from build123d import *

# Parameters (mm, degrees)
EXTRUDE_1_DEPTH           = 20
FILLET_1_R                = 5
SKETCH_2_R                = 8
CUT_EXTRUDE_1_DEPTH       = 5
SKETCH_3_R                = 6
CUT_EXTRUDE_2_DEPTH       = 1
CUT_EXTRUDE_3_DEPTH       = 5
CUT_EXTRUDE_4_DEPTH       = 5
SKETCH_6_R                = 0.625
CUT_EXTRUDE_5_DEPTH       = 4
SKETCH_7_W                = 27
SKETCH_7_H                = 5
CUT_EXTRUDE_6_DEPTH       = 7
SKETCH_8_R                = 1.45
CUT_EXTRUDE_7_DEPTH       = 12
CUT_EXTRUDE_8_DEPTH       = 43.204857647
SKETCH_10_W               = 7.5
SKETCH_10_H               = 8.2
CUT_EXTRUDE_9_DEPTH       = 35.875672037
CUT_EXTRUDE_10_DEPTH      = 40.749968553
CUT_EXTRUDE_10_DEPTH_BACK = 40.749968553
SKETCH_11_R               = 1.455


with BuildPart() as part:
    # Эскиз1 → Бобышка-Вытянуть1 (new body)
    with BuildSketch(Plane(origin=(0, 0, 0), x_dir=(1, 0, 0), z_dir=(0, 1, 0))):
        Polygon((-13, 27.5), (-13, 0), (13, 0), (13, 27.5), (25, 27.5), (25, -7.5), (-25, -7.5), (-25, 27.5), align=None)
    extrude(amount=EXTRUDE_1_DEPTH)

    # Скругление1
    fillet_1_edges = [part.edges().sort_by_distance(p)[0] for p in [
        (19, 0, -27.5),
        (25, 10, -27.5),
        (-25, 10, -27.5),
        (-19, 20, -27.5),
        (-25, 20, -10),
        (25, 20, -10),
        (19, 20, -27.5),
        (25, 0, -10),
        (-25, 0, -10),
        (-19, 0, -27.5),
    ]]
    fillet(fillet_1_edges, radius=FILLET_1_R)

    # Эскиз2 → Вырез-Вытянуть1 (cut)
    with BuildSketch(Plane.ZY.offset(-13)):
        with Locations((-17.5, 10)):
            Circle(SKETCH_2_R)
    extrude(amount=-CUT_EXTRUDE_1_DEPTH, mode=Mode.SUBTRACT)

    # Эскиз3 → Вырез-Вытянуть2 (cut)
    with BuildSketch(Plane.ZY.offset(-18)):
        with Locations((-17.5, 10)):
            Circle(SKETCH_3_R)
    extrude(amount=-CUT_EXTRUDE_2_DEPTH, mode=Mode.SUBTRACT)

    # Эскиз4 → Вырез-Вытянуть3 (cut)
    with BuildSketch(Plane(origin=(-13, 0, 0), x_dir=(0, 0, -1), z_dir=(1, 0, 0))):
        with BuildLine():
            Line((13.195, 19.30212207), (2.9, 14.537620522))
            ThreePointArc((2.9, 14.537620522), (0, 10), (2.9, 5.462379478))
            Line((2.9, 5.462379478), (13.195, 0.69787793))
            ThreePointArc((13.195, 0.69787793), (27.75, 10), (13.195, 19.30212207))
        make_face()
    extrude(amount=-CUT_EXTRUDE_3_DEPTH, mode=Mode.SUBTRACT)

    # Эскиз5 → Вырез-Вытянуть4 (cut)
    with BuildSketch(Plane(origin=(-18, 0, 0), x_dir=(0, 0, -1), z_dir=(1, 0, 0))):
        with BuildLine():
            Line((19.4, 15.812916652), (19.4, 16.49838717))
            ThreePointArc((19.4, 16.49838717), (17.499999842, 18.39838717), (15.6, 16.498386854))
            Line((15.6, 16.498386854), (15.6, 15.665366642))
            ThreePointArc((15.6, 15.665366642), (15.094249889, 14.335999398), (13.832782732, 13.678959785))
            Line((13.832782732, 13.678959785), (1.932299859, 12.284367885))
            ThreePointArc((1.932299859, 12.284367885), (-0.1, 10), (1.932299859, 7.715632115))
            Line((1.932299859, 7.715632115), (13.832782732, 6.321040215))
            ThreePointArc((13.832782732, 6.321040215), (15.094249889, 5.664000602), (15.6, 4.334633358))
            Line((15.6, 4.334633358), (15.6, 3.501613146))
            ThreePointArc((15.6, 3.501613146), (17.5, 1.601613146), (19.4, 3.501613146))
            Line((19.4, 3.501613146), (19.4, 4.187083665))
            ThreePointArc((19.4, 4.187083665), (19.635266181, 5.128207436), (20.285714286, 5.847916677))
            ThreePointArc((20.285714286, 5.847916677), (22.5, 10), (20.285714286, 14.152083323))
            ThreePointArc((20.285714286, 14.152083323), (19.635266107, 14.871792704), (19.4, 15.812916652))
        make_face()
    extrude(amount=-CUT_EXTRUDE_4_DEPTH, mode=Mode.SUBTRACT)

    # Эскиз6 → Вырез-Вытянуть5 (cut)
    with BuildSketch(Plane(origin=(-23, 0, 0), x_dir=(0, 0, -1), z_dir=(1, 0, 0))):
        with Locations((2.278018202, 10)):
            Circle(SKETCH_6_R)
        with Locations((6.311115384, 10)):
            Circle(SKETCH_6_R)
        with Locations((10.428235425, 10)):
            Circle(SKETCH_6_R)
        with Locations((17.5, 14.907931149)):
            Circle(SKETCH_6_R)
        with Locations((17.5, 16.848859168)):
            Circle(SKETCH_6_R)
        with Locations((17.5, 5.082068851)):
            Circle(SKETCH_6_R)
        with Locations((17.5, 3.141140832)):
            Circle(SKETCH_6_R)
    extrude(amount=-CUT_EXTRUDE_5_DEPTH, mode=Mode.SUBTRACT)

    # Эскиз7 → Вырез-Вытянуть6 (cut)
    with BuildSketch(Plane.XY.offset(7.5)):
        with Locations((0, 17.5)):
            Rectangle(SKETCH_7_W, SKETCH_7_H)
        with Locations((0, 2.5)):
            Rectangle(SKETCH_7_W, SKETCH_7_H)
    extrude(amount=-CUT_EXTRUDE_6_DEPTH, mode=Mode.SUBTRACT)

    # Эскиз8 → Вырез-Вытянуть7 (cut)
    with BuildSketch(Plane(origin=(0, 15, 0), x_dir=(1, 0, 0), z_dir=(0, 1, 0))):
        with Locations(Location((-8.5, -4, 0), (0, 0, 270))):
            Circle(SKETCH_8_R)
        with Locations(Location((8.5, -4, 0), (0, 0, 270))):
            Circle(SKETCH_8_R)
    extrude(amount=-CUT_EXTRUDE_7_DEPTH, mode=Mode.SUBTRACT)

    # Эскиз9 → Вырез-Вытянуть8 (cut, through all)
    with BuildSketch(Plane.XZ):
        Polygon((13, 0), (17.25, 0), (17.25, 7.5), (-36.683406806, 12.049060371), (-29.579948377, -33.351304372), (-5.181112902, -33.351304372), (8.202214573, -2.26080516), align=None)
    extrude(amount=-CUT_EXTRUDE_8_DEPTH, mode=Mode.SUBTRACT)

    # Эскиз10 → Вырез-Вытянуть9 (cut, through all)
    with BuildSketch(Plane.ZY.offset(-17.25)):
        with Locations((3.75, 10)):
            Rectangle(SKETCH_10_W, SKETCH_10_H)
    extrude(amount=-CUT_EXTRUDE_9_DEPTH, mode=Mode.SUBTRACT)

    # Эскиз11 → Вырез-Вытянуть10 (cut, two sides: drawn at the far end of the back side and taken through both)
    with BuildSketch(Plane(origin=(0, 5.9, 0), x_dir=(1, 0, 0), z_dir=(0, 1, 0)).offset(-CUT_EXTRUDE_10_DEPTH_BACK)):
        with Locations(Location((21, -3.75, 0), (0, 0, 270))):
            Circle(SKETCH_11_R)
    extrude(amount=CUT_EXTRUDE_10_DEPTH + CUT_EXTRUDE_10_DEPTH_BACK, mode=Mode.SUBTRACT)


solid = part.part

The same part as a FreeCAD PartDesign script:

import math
import FreeCAD as App
import Part
import Sketcher
from FreeCAD import Vector


def edges_at(feature, points):
    """Names of the edges that pass closest to the given points."""
    edges = feature.Shape.Edges
    near = lambda p: min(range(len(edges)), key=lambda i: edges[i].distToShape(Part.Vertex(*p))[0])
    return sorted({f"Edge{near(p) + 1}" for p in points})

doc = App.newDocument("Part")
body = doc.addObject("PartDesign::Body", "Body")

# Sketch on XZ plane
sketch1 = body.newObject("Sketcher::SketchObject", "Sketch")
sketch1.AttachmentSupport = (doc.getObject("XZ_Plane"), [""])
sketch1.MapMode = "FlatFace"
sketch1.addGeometry([
    Part.LineSegment(Vector(-13, 0, 0), Vector(-13, -27.5, 0)),  # 0
    Part.LineSegment(Vector(-13, -27.5, 0), Vector(-25, -27.5, 0)),  # 1
    Part.LineSegment(Vector(-25, -27.5, 0), Vector(-25, 7.5, 0)),  # 2
    Part.LineSegment(Vector(-25, 7.5, 0), Vector(25, 7.5, 0)),  # 3
    Part.LineSegment(Vector(25, 7.5, 0), Vector(25, -27.5, 0)),  # 4
    Part.LineSegment(Vector(25, -27.5, 0), Vector(13, -27.5, 0)),  # 5
    Part.LineSegment(Vector(13, -27.5, 0), Vector(13, 0, 0)),  # 6
    Part.LineSegment(Vector(13, 0, 0), Vector(-13, 0, 0)),  # 7
], False)
sketch1.addConstraint([
    Sketcher.Constraint("Coincident", 0, 2, 1, 1),
    Sketcher.Constraint("Coincident", 1, 2, 2, 1),
    Sketcher.Constraint("Coincident", 2, 2, 3, 1),
    Sketcher.Constraint("Coincident", 3, 2, 4, 1),
    Sketcher.Constraint("Coincident", 4, 2, 5, 1),
    Sketcher.Constraint("Coincident", 5, 2, 6, 1),
    Sketcher.Constraint("Coincident", 6, 2, 7, 1),
    Sketcher.Constraint("Coincident", 7, 2, 0, 1),
    Sketcher.Constraint("Vertical", 0),
    Sketcher.Constraint("Horizontal", 1),
    Sketcher.Constraint("Vertical", 2),
    Sketcher.Constraint("Horizontal", 3),
    Sketcher.Constraint("Vertical", 4),
    Sketcher.Constraint("Horizontal", 5),
    Sketcher.Constraint("Vertical", 6),
    Sketcher.Constraint("Horizontal", 7),
    Sketcher.Constraint("Symmetric", 6, 2, 7, 2, -1, 1),
    Sketcher.Constraint("Symmetric", 1, 2, 4, 2, -2),
    Sketcher.Constraint("DistanceX", 1, 2, 1, 1, 12.0),
    Sketcher.Constraint("DistanceX", 3, 1, 3, 2, 50.0),
    Sketcher.Constraint("DistanceY", 2, 1, 2, 2, 35.0),
    Sketcher.Constraint("DistanceY", 0, 2, 0, 1, 27.5),
])
pad1 = body.newObject("PartDesign::Pad", "Pad")
pad1.Profile = sketch1
pad1.Length = 20
pad1.Reversed = True
doc.recompute()

fillet = body.newObject("PartDesign::Fillet", "Fillet")
fillet.Base = (pad1, edges_at(pad1, [
    (19, 0, -27.5),
    (25, 10, -27.5),
    (-25, 10, -27.5),
    (-19, 20, -27.5),
    (-25, 20, -10),
    (25, 20, -10),
    (19, 20, -27.5),
    (25, 0, -10),
    (-25, 0, -10),
    (-19, 0, -27.5),
]))
fillet.Radius = 5

# Sketch on YZ plane
sketch2 = body.newObject("Sketcher::SketchObject", "Sketch001")
sketch2.AttachmentSupport = (doc.getObject("YZ_Plane"), [""])
sketch2.MapMode = "FlatFace"
sketch2.AttachmentOffset = App.Placement(Vector(0, 0, 13), App.Rotation())
sketch2.addGeometry(Part.Circle(Vector(10, -17.5, 0), Vector(0, 0, 1), 8), False)
sketch2.addConstraint([
    Sketcher.Constraint("Diameter", 0, 16.0),
    Sketcher.Constraint("DistanceX", -1, 1, 0, 3, 10.0),
    Sketcher.Constraint("DistanceY", 0, 3, -1, 1, 17.5),
])
pocket1 = body.newObject("PartDesign::Pocket", "Pocket")
pocket1.Profile = sketch2
pocket1.Length = 5
pocket1.Reversed = True

# Sketch on YZ plane
sketch3 = body.newObject("Sketcher::SketchObject", "Sketch002")
sketch3.AttachmentSupport = (doc.getObject("YZ_Plane"), [""])
sketch3.MapMode = "FlatFace"
sketch3.AttachmentOffset = App.Placement(Vector(0, 0, 18), App.Rotation())
sketch3.addGeometry(Part.Circle(Vector(10, -17.5, 0), Vector(0, 0, 1), 6), False)
sketch3.addConstraint([
    Sketcher.Constraint("Diameter", 0, 12.0),
    Sketcher.Constraint("DistanceX", -1, 1, 0, 3, 10.0),
    Sketcher.Constraint("DistanceY", 0, 3, -1, 1, 17.5),
])
pocket2 = body.newObject("PartDesign::Pocket", "Pocket001")
pocket2.Profile = sketch3
pocket2.Length = 1
pocket2.Reversed = True

# Sketch on YZ plane
sketch4 = body.newObject("Sketcher::SketchObject", "Sketch003")
sketch4.AttachmentSupport = (doc.getObject("YZ_Plane"), [""])
sketch4.MapMode = "FlatFace"
sketch4.AttachmentOffset = App.Placement(Vector(0, 0, -13), App.Rotation())
sketch4.addGeometry([
    Part.LineSegment(Vector(19.302122, -13.195, 0), Vector(14.537621, -2.9, 0)),
    Part.ArcOfCircle(Part.Circle(Vector(10, -5, 0), Vector(0, 0, 1), 5), math.radians(24.834587), math.radians(155.165413)),
    Part.LineSegment(Vector(5.462379, -2.9, 0), Vector(0.697878, -13.195, 0)),
    Part.ArcOfCircle(Part.Circle(Vector(10, -17.5, 0), Vector(0, 0, 1), 10.25), math.radians(155.165413), math.radians(384.834587)),
], False)
sketch4.addConstraint([
    Sketcher.Constraint("Tangent", 0, 2, 1, 1),
    Sketcher.Constraint("Tangent", 1, 2, 2, 1),
    Sketcher.Constraint("Tangent", 2, 2, 3, 1),
    Sketcher.Constraint("Tangent", 3, 2, 0, 1),
    Sketcher.Constraint("Horizontal", 0, 2, 1, 2),
    Sketcher.Constraint("Radius", 1, 5.0),
    Sketcher.Constraint("Radius", 3, 10.25),
    Sketcher.Constraint("DistanceX", -1, 1, 1, 3, 10.0),
    Sketcher.Constraint("DistanceY", 1, 3, -1, 1, 5.0),
    Sketcher.Constraint("DistanceY", 3, 3, -1, 1, 17.5),
])
pocket3 = body.newObject("PartDesign::Pocket", "Pocket002")
pocket3.Profile = sketch4
pocket3.Length = 5

# Sketch on YZ plane
sketch5 = body.newObject("Sketcher::SketchObject", "Sketch004")
sketch5.AttachmentSupport = (doc.getObject("YZ_Plane"), [""])
sketch5.MapMode = "FlatFace"
sketch5.AttachmentOffset = App.Placement(Vector(0, 0, -18), App.Rotation())
sketch5.addGeometry([
    Part.LineSegment(Vector(15.812917, -19.4, 0), Vector(16.498387, -19.4, 0)),  # 0
    Part.ArcOfCircle(Part.Circle(Vector(16.498387, -17.5, 0), Vector(0, 0, 1), 1.9), math.radians(-90), math.radians(90.00001)),  # 1
    Part.LineSegment(Vector(16.498387, -15.6, 0), Vector(15.665367, -15.6, 0)),  # 2
    Part.ArcOfCircle(Part.Circle(Vector(15.665367, -13.6, 0), Vector(0, 0, 1), 2), math.radians(-173.316117), math.radians(-90)),  # 3
    Part.LineSegment(Vector(13.67896, -13.832783, 0), Vector(12.284368, -1.9323, 0)),  # 4
    Part.ArcOfCircle(Part.Circle(Vector(10, -2.2, 0), Vector(0, 0, 1), 2.3), math.radians(6.683883), math.radians(173.316117)),  # 5
    Part.LineSegment(Vector(7.715632, -1.9323, 0), Vector(6.32104, -13.832783, 0)),  # 6
    Part.ArcOfCircle(Part.Circle(Vector(4.334633, -13.6, 0), Vector(0, 0, 1), 2), math.radians(-90), math.radians(-6.683883)),  # 7
    Part.LineSegment(Vector(4.334633, -15.6, 0), Vector(3.501613, -15.6, 0)),  # 8
    Part.ArcOfCircle(Part.Circle(Vector(3.501613, -17.5, 0), Vector(0, 0, 1), 1.9), math.radians(90), math.radians(270)),  # 9
    Part.LineSegment(Vector(3.501613, -19.4, 0), Vector(4.187084, -19.4, 0)),  # 10
    Part.ArcOfCircle(Part.Circle(Vector(4.187083, -21.4, 0), Vector(0, 0, 1), 2), math.radians(33.858437), math.radians(89.999991)),  # 11
    Part.ArcOfCircle(Part.Circle(Vector(10, -17.5, 0), Vector(0, 0, 1), 5), math.radians(-146.141563), math.radians(-33.858437)),  # 12
    Part.ArcOfCircle(Part.Circle(Vector(15.812917, -21.4, 0), Vector(0, 0, 1), 2), math.radians(90), math.radians(146.141563)),  # 13
], False)
sketch5.addConstraint([
    Sketcher.Constraint("Tangent", 0, 2, 1, 1),
    Sketcher.Constraint("Tangent", 1, 2, 2, 1),
    Sketcher.Constraint("Tangent", 2, 2, 3, 2),
    Sketcher.Constraint("Tangent", 3, 1, 4, 1),
    Sketcher.Constraint("Tangent", 4, 2, 5, 1),
    Sketcher.Constraint("Tangent", 5, 2, 6, 1),
    Sketcher.Constraint("Tangent", 6, 2, 7, 2),
    Sketcher.Constraint("Tangent", 7, 1, 8, 1),
    Sketcher.Constraint("Tangent", 8, 2, 9, 1),
    Sketcher.Constraint("Tangent", 9, 2, 10, 1),
    Sketcher.Constraint("Tangent", 10, 2, 11, 2),
    Sketcher.Constraint("Tangent", 11, 1, 12, 1),
    Sketcher.Constraint("Tangent", 12, 2, 13, 2),
    Sketcher.Constraint("Tangent", 13, 1, 0, 1),
    Sketcher.Constraint("Horizontal", 0),
    Sketcher.Constraint("Horizontal", 2),
    Sketcher.Constraint("Horizontal", 8),
    Sketcher.Constraint("Horizontal", 10),
    Sketcher.Constraint("Equal", 3, 7),
    Sketcher.Constraint("Equal", 1, 9),
    Sketcher.Constraint("Equal", 7, 11),
    Sketcher.Constraint("Equal", 11, 13),
    Sketcher.Constraint("Horizontal", 3, 3, 7, 3),
    Sketcher.Constraint("Horizontal", 9, 3, 12, 3),
    Sketcher.Constraint("Horizontal", 4, 2, 5, 2),
    Sketcher.Constraint("Vertical", 5, 3, 12, 3),
    Sketcher.Constraint("Equal", 2, 8),
    Sketcher.Constraint("Radius", 3, 2.0),
    Sketcher.Constraint("Radius", 12, 5.0),
    Sketcher.Constraint("Radius", 1, 1.9),
    Sketcher.Constraint("Radius", 5, 2.3),
    Sketcher.Constraint("DistanceX", -1, 1, 5, 3, 10.0),
    Sketcher.Constraint("DistanceY", 1, 3, -1, 1, 17.5),
    Sketcher.Constraint("DistanceY", 5, 3, -1, 1, 2.2),
    Sketcher.Constraint("DistanceX", 4, 2, 3, 3, 3.380999),
    Sketcher.Constraint("DistanceX", 0, 1, 0, 2, 0.685471),
])
pocket4 = body.newObject("PartDesign::Pocket", "Pocket003")
pocket4.Profile = sketch5
pocket4.Length = 5

# Sketch on YZ plane
sketch6 = body.newObject("Sketcher::SketchObject", "Sketch005")
sketch6.AttachmentSupport = (doc.getObject("YZ_Plane"), [""])
sketch6.MapMode = "FlatFace"
sketch6.AttachmentOffset = App.Placement(Vector(0, 0, -23), App.Rotation())
sketch6.addGeometry([
    Part.Circle(Vector(10, -2.278018, 0), Vector(0, 0, 1), 0.625),  # 0
    Part.Circle(Vector(10, -6.311115, 0), Vector(0, 0, 1), 0.625),  # 1
    Part.Circle(Vector(10, -10.428235, 0), Vector(0, 0, 1), 0.625),  # 2
    Part.Circle(Vector(14.907931, -17.5, 0), Vector(0, 0, 1), 0.625),  # 3
    Part.Circle(Vector(16.848859, -17.5, 0), Vector(0, 0, 1), 0.625),  # 4
    Part.Circle(Vector(5.082069, -17.5, 0), Vector(0, 0, 1), 0.625),  # 5
    Part.Circle(Vector(3.141141, -17.5, 0), Vector(0, 0, 1), 0.625),  # 6
], False)
sketch6.addConstraint([
    Sketcher.Constraint("Equal", 0, 1),
    Sketcher.Constraint("Equal", 1, 2),
    Sketcher.Constraint("Equal", 2, 3),
    Sketcher.Constraint("Equal", 3, 4),
    Sketcher.Constraint("Equal", 4, 5),
    Sketcher.Constraint("Equal", 5, 6),
    Sketcher.Constraint("Horizontal", 3, 3, 4, 3),
    Sketcher.Constraint("Horizontal", 4, 3, 5, 3),
    Sketcher.Constraint("Horizontal", 5, 3, 6, 3),
    Sketcher.Constraint("Vertical", 0, 3, 1, 3),
    Sketcher.Constraint("Vertical", 1, 3, 2, 3),
    Sketcher.Constraint("Diameter", 0, 1.25),
    Sketcher.Constraint("DistanceX", -1, 1, 0, 3, 10.0),
    Sketcher.Constraint("DistanceY", 3, 3, -1, 1, 17.5),
    Sketcher.Constraint("DistanceY", 0, 3, -1, 1, 2.278018),
    Sketcher.Constraint("DistanceX", -1, 1, 3, 3, 14.907931),
    Sketcher.Constraint("DistanceX", -1, 1, 4, 3, 16.848859),
    Sketcher.Constraint("DistanceX", -1, 1, 5, 3, 5.082069),
    Sketcher.Constraint("DistanceX", -1, 1, 6, 3, 3.141141),
    Sketcher.Constraint("DistanceY", 2, 3, 1, 3, 4.11712),
    Sketcher.Constraint("DistanceY", 1, 3, -1, 1, 6.311115),
])
pocket5 = body.newObject("PartDesign::Pocket", "Pocket004")
pocket5.Profile = sketch6
pocket5.Length = 4

# Sketch on XY plane
sketch7 = body.newObject("Sketcher::SketchObject", "Sketch006")
sketch7.AttachmentSupport = (doc.getObject("XY_Plane"), [""])
sketch7.MapMode = "FlatFace"
sketch7.AttachmentOffset = App.Placement(Vector(0, 0, 7.5), App.Rotation())
sketch7.addGeometry([
    Part.LineSegment(Vector(-13.5, 20, 0), Vector(-13.5, 15, 0)),  # 0
    Part.LineSegment(Vector(-13.5, 15, 0), Vector(13.5, 15, 0)),  # 1
    Part.LineSegment(Vector(13.5, 15, 0), Vector(13.5, 20, 0)),  # 2
    Part.LineSegment(Vector(13.5, 20, 0), Vector(-13.5, 20, 0)),  # 3
    Part.LineSegment(Vector(-13.5, 5, 0), Vector(-13.5, 0, 0)),  # 4
    Part.LineSegment(Vector(-13.5, 0, 0), Vector(13.5, 0, 0)),  # 5
    Part.LineSegment(Vector(13.5, 0, 0), Vector(13.5, 5, 0)),  # 6
    Part.LineSegment(Vector(13.5, 5, 0), Vector(-13.5, 5, 0)),  # 7
], False)
sketch7.addConstraint([
    Sketcher.Constraint("Coincident", 0, 2, 1, 1),
    Sketcher.Constraint("Coincident", 1, 2, 2, 1),
    Sketcher.Constraint("Coincident", 2, 2, 3, 1),
    Sketcher.Constraint("Coincident", 3, 2, 0, 1),
    Sketcher.Constraint("Coincident", 4, 2, 5, 1),
    Sketcher.Constraint("Coincident", 5, 2, 6, 1),
    Sketcher.Constraint("Coincident", 6, 2, 7, 1),
    Sketcher.Constraint("Coincident", 7, 2, 4, 1),
    Sketcher.Constraint("Vertical", 0),
    Sketcher.Constraint("Horizontal", 1),
    Sketcher.Constraint("Vertical", 2),
    Sketcher.Constraint("Horizontal", 3),
    Sketcher.Constraint("Vertical", 4),
    Sketcher.Constraint("Horizontal", 5),
    Sketcher.Constraint("Vertical", 6),
    Sketcher.Constraint("Horizontal", 7),
    Sketcher.Constraint("Symmetric", 4, 2, 5, 2, -1, 1),
    Sketcher.Constraint("Vertical", 3, 2, 4, 2),
    Sketcher.Constraint("Vertical", 2, 2, 5, 2),
    Sketcher.Constraint("Equal", 2, 4),
    Sketcher.Constraint("DistanceX", 1, 1, 1, 2, 27.0),
    Sketcher.Constraint("DistanceY", 0, 2, 0, 1, 5.0),
    Sketcher.Constraint("DistanceY", -1, 1, 0, 2, 15.0),
])
pocket6 = body.newObject("PartDesign::Pocket", "Pocket005")
pocket6.Profile = sketch7
pocket6.Length = 7

# Sketch on XZ plane
sketch8 = body.newObject("Sketcher::SketchObject", "Sketch007")
sketch8.AttachmentSupport = (doc.getObject("XZ_Plane"), [""])
sketch8.MapMode = "FlatFace"
sketch8.AttachmentOffset = App.Placement(Vector(0, 0, -15), App.Rotation())
sketch8.addGeometry([
    Part.Circle(Vector(-8.5, 4, 0), Vector(0, 0, 1), 1.45),
    Part.Circle(Vector(8.5, 4, 0), Vector(0, 0, 1), 1.45),
], False)
sketch8.addConstraint([
    Sketcher.Constraint("Equal", 0, 1),
    Sketcher.Constraint("Symmetric", 0, 3, 1, 3, -2),
    Sketcher.Constraint("Diameter", 0, 2.9),
    Sketcher.Constraint("DistanceY", -1, 1, 0, 3, 4.0),
    Sketcher.Constraint("DistanceX", 0, 3, 1, 3, 17.0),
])
pocket7 = body.newObject("PartDesign::Pocket", "Pocket006")
pocket7.Profile = sketch8
pocket7.Length = 12
pocket7.Reversed = True

# Sketch on XZ plane
sketch9 = body.newObject("Sketcher::SketchObject", "Sketch008")
sketch9.AttachmentSupport = (doc.getObject("XZ_Plane"), [""])
sketch9.MapMode = "FlatFace"
sketch9.addGeometry([
    Part.LineSegment(Vector(13, 0, 0), Vector(17.25, 0, 0)),  # 0
    Part.LineSegment(Vector(17.25, 0, 0), Vector(17.25, 7.5, 0)),  # 1
    Part.LineSegment(Vector(17.25, 7.5, 0), Vector(-36.683407, 12.04906, 0)),  # 2
    Part.LineSegment(Vector(-36.683407, 12.04906, 0), Vector(-29.579948, -33.351304, 0)),  # 3
    Part.LineSegment(Vector(-29.579948, -33.351304, 0), Vector(-5.181113, -33.351304, 0)),  # 4
    Part.LineSegment(Vector(-5.181113, -33.351304, 0), Vector(8.202215, -2.260805, 0)),  # 5
    Part.LineSegment(Vector(8.202215, -2.260805, 0), Vector(13, 0, 0)),  # 6
], False)
sketch9.addConstraint([
    Sketcher.Constraint("Coincident", 0, 2, 1, 1),
    Sketcher.Constraint("Coincident", 1, 2, 2, 1),
    Sketcher.Constraint("Coincident", 2, 2, 3, 1),
    Sketcher.Constraint("Coincident", 3, 2, 4, 1),
    Sketcher.Constraint("Coincident", 4, 2, 5, 1),
    Sketcher.Constraint("Coincident", 5, 2, 6, 1),
    Sketcher.Constraint("Coincident", 6, 2, 0, 1),
    Sketcher.Constraint("Horizontal", 0),
    Sketcher.Constraint("Vertical", 1),
    Sketcher.Constraint("Horizontal", 4),
    Sketcher.Constraint("PointOnObject", 0, 2, -1),
    Sketcher.Constraint("DistanceY", 1, 1, 1, 2, 7.5),
    Sketcher.Constraint("DistanceX", -1, 1, 6, 2, 13.0),
    Sketcher.Constraint("DistanceX", 0, 1, 0, 2, 4.25),
    Sketcher.Constraint("DistanceY", 4, 2, 5, 2, 31.090499),
    Sketcher.Constraint("Distance", 5, 33.848672),
    Sketcher.Constraint("Distance", 6, 5.303771),
    Sketcher.Constraint("DistanceX", 4, 1, 4, 2, 24.398835),
    Sketcher.Constraint("DistanceY", -1, 1, 2, 2, 12.04906),
    Sketcher.Constraint("DistanceX", 3, 2, -1, 1, 29.579948),
    Sketcher.Constraint("DistanceX", 2, 2, 3, 2, 7.103458),
])
pocket8 = body.newObject("PartDesign::Pocket", "Pocket007")
pocket8.Profile = sketch9
pocket8.Type = "ThroughAll"

# Sketch on YZ plane
sketch10 = body.newObject("Sketcher::SketchObject", "Sketch009")
sketch10.AttachmentSupport = (doc.getObject("YZ_Plane"), [""])
sketch10.MapMode = "FlatFace"
sketch10.AttachmentOffset = App.Placement(Vector(0, 0, 17.25), App.Rotation())
sketch10.addGeometry([
    Part.LineSegment(Vector(14.1, 0, 0), Vector(5.9, 0, 0)),
    Part.LineSegment(Vector(5.9, 0, 0), Vector(5.9, 7.5, 0)),
    Part.LineSegment(Vector(5.9, 7.5, 0), Vector(14.1, 7.5, 0)),
    Part.LineSegment(Vector(14.1, 7.5, 0), Vector(14.1, 0, 0)),
], False)
sketch10.addConstraint([
    Sketcher.Constraint("Coincident", 0, 2, 1, 1),
    Sketcher.Constraint("Coincident", 1, 2, 2, 1),
    Sketcher.Constraint("Coincident", 2, 2, 3, 1),
    Sketcher.Constraint("Coincident", 3, 2, 0, 1),
    Sketcher.Constraint("Horizontal", 0),
    Sketcher.Constraint("Vertical", 1),
    Sketcher.Constraint("Horizontal", 2),
    Sketcher.Constraint("Vertical", 3),
    Sketcher.Constraint("PointOnObject", 0, 2, -1),
    Sketcher.Constraint("DistanceX", 0, 2, 0, 1, 8.2),
    Sketcher.Constraint("DistanceY", 1, 1, 1, 2, 7.5),
    Sketcher.Constraint("DistanceX", -1, 1, 0, 2, 5.9),
])
pocket9 = body.newObject("PartDesign::Pocket", "Pocket008")
pocket9.Profile = sketch10
pocket9.Type = "ThroughAll"
pocket9.Reversed = True

# Sketch on XZ plane
sketch11 = body.newObject("Sketcher::SketchObject", "Sketch010")
sketch11.AttachmentSupport = (doc.getObject("XZ_Plane"), [""])
sketch11.MapMode = "FlatFace"
sketch11.AttachmentOffset = App.Placement(Vector(0, 0, -5.9), App.Rotation())
sketch11.addGeometry(Part.Circle(Vector(21, 3.75, 0), Vector(0, 0, 1), 1.455), False)
sketch11.addConstraint([
    Sketcher.Constraint("Diameter", 0, 2.91),
    Sketcher.Constraint("DistanceX", -1, 1, 0, 3, 21.0),
    Sketcher.Constraint("DistanceY", -1, 1, 0, 3, 3.75),
])
pocket10 = body.newObject("PartDesign::Pocket", "Pocket009")
pocket10.Profile = sketch11
pocket10.Type = "ThroughAll"
pocket10.Midplane = True

doc.recompute()
